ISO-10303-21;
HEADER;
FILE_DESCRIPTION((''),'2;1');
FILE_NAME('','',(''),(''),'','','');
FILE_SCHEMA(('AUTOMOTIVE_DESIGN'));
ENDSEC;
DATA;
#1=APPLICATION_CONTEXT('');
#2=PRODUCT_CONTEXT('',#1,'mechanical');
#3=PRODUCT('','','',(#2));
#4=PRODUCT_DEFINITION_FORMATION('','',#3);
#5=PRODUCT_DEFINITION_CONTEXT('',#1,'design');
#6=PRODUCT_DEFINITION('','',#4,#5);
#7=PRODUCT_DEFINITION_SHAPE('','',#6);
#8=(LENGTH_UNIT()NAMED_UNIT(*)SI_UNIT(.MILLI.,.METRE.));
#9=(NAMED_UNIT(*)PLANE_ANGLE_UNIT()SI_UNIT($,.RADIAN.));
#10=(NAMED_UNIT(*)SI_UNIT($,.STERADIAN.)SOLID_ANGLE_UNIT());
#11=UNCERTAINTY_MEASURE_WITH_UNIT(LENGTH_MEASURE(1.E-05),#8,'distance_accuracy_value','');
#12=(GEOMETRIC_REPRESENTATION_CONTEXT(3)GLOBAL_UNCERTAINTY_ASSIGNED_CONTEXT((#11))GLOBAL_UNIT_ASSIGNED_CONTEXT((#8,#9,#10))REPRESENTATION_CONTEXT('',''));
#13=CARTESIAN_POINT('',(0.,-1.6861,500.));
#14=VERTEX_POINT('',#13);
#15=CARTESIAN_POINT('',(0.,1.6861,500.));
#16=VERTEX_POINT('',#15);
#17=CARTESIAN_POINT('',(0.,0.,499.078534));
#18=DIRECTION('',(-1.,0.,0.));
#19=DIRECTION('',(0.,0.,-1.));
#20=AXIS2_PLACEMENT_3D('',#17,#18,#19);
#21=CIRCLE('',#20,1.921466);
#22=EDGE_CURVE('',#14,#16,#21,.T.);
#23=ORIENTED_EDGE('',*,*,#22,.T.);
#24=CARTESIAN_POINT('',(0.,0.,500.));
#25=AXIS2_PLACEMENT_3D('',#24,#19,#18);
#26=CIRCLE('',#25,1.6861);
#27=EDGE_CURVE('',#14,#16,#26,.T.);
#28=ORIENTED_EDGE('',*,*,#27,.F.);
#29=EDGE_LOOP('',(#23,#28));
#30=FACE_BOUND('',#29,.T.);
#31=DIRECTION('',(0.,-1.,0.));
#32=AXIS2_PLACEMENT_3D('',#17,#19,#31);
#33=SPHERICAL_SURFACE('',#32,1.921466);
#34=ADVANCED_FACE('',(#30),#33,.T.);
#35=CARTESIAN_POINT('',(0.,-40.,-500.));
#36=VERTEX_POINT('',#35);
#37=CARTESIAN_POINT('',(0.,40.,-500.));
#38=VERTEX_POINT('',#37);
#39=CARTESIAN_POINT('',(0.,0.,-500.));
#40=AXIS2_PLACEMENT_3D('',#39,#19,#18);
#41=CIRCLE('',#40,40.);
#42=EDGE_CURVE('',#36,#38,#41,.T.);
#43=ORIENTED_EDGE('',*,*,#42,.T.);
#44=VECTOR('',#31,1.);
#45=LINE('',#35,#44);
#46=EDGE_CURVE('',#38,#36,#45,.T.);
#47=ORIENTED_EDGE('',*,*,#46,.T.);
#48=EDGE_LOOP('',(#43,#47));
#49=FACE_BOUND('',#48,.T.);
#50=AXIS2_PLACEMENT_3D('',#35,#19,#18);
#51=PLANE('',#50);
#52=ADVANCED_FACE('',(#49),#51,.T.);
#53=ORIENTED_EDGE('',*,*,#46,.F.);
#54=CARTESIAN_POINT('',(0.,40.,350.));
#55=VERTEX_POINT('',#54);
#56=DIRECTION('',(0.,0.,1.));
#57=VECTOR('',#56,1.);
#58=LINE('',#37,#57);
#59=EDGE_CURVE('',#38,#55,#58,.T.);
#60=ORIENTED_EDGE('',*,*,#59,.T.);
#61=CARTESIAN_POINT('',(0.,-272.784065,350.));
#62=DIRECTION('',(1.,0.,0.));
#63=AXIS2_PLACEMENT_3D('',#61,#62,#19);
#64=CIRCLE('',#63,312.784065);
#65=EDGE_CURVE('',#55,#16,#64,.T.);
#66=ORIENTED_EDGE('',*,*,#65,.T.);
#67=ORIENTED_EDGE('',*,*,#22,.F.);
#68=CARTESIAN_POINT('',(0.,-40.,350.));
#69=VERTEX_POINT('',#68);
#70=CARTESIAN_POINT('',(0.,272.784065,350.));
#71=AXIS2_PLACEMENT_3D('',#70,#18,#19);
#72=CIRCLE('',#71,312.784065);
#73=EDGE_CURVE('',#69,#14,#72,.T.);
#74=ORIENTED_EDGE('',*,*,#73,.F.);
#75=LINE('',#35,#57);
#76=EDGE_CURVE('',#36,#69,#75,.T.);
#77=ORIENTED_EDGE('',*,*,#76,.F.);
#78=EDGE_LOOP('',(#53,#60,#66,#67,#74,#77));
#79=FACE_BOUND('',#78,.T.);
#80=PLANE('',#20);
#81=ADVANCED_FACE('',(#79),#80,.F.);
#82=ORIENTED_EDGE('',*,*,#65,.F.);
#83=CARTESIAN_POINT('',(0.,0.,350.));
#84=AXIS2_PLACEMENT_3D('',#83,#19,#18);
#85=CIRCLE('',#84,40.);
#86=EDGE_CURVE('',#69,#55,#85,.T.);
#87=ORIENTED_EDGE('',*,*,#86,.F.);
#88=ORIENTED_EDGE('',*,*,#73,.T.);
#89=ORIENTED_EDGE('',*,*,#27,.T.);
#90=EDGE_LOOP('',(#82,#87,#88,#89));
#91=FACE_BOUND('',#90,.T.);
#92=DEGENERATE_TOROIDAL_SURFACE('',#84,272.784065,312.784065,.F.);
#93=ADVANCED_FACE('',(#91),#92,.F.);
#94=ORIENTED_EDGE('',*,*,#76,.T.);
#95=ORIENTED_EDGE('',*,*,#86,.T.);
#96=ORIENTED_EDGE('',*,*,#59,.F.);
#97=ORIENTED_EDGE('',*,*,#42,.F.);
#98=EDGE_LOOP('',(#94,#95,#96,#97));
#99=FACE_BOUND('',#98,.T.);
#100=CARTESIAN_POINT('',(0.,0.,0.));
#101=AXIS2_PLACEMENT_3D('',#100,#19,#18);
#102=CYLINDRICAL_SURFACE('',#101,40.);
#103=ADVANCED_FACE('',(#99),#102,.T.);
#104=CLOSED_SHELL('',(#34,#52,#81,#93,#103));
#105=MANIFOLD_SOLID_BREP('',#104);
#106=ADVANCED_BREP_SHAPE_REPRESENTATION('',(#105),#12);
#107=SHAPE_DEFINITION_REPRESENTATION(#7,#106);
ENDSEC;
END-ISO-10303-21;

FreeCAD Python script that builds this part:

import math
import FreeCAD as App
import Part
import Sketcher
Q = App.Units.Quantity

doc = App.newDocument("Part")
body = doc.addObject("PartDesign::Body", "Body")

sketch1 = body.newObject("Sketcher::SketchObject", "Sketch")
sketch1.AttachmentSupport = (doc.getObject("YZ_Plane"), [""])
sketch1.MapMode = "FlatFace"
sketch1.addGeometry(Part.LineSegment(App.Vector(40, -500, 0), App.Vector(40, 350, 0)), False)
sketch1.addGeometry(Part.ArcOfCircle(Part.Circle(App.Vector(-272.8, 350, 0), App.Vector(0, 0, 1), 312.8), math.radians(0), math.radians(29)), False)
sketch1.addGeometry(Part.ArcOfCircle(Part.Circle(App.Vector(0, 499.1, 0), App.Vector(0, 0, 1), 1.9), math.radians(29), math.radians(90)), False)
sketch1.addGeometry(Part.LineSegment(App.Vector(0, 501, 0), App.Vector(0, -500, 0)), False)
sketch1.addGeometry(Part.LineSegment(App.Vector(0, -500, 0), App.Vector(40, -500, 0)), False)
sketch1.addConstraint(Sketcher.Constraint("Tangent", 0, 2, 1, 1))
sketch1.addConstraint(Sketcher.Constraint("Tangent", 1, 2, 2, 1))
sketch1.addConstraint(Sketcher.Constraint("Coincident", 2, 2, 3, 1))
sketch1.addConstraint(Sketcher.Constraint("Coincident", 3, 2, 4, 1))
sketch1.addConstraint(Sketcher.Constraint("Coincident", 4, 2, 0, 1))
sketch1.addConstraint(Sketcher.Constraint("Vertical", 0))
sketch1.addConstraint(Sketcher.Constraint("Vertical", 3))
sketch1.addConstraint(Sketcher.Constraint("Horizontal", 4))
sketch1.addConstraint(Sketcher.Constraint("PointOnObject", 2, 3, -2))
sketch1.addConstraint(Sketcher.Constraint("PointOnObject", 2, 2, -2))
sketch1.addConstraint(Sketcher.Constraint("DistanceX", 4, 1, 4, 2, Q("40 mm")))
sketch1.addConstraint(Sketcher.Constraint("DistanceY", 0, 1, 0, 2, Q("850 mm")))
sketch1.addConstraint(Sketcher.Constraint("DistanceY", 3, 2, 3, 1, Q("1001 mm")))
sketch1.addConstraint(Sketcher.Constraint("DistanceY", -1, 1, 1, 3, Q("350 mm")))
sketch1.addConstraint(Sketcher.Constraint("Radius", 1, Q("312.784065 mm")))
revolution = body.newObject("PartDesign::Revolution", "Revolution")
revolution.Profile = sketch1
revolution.ReferenceAxis = (sketch1, ["V_Axis"])
revolution.Angle = 180

doc.recompute()
